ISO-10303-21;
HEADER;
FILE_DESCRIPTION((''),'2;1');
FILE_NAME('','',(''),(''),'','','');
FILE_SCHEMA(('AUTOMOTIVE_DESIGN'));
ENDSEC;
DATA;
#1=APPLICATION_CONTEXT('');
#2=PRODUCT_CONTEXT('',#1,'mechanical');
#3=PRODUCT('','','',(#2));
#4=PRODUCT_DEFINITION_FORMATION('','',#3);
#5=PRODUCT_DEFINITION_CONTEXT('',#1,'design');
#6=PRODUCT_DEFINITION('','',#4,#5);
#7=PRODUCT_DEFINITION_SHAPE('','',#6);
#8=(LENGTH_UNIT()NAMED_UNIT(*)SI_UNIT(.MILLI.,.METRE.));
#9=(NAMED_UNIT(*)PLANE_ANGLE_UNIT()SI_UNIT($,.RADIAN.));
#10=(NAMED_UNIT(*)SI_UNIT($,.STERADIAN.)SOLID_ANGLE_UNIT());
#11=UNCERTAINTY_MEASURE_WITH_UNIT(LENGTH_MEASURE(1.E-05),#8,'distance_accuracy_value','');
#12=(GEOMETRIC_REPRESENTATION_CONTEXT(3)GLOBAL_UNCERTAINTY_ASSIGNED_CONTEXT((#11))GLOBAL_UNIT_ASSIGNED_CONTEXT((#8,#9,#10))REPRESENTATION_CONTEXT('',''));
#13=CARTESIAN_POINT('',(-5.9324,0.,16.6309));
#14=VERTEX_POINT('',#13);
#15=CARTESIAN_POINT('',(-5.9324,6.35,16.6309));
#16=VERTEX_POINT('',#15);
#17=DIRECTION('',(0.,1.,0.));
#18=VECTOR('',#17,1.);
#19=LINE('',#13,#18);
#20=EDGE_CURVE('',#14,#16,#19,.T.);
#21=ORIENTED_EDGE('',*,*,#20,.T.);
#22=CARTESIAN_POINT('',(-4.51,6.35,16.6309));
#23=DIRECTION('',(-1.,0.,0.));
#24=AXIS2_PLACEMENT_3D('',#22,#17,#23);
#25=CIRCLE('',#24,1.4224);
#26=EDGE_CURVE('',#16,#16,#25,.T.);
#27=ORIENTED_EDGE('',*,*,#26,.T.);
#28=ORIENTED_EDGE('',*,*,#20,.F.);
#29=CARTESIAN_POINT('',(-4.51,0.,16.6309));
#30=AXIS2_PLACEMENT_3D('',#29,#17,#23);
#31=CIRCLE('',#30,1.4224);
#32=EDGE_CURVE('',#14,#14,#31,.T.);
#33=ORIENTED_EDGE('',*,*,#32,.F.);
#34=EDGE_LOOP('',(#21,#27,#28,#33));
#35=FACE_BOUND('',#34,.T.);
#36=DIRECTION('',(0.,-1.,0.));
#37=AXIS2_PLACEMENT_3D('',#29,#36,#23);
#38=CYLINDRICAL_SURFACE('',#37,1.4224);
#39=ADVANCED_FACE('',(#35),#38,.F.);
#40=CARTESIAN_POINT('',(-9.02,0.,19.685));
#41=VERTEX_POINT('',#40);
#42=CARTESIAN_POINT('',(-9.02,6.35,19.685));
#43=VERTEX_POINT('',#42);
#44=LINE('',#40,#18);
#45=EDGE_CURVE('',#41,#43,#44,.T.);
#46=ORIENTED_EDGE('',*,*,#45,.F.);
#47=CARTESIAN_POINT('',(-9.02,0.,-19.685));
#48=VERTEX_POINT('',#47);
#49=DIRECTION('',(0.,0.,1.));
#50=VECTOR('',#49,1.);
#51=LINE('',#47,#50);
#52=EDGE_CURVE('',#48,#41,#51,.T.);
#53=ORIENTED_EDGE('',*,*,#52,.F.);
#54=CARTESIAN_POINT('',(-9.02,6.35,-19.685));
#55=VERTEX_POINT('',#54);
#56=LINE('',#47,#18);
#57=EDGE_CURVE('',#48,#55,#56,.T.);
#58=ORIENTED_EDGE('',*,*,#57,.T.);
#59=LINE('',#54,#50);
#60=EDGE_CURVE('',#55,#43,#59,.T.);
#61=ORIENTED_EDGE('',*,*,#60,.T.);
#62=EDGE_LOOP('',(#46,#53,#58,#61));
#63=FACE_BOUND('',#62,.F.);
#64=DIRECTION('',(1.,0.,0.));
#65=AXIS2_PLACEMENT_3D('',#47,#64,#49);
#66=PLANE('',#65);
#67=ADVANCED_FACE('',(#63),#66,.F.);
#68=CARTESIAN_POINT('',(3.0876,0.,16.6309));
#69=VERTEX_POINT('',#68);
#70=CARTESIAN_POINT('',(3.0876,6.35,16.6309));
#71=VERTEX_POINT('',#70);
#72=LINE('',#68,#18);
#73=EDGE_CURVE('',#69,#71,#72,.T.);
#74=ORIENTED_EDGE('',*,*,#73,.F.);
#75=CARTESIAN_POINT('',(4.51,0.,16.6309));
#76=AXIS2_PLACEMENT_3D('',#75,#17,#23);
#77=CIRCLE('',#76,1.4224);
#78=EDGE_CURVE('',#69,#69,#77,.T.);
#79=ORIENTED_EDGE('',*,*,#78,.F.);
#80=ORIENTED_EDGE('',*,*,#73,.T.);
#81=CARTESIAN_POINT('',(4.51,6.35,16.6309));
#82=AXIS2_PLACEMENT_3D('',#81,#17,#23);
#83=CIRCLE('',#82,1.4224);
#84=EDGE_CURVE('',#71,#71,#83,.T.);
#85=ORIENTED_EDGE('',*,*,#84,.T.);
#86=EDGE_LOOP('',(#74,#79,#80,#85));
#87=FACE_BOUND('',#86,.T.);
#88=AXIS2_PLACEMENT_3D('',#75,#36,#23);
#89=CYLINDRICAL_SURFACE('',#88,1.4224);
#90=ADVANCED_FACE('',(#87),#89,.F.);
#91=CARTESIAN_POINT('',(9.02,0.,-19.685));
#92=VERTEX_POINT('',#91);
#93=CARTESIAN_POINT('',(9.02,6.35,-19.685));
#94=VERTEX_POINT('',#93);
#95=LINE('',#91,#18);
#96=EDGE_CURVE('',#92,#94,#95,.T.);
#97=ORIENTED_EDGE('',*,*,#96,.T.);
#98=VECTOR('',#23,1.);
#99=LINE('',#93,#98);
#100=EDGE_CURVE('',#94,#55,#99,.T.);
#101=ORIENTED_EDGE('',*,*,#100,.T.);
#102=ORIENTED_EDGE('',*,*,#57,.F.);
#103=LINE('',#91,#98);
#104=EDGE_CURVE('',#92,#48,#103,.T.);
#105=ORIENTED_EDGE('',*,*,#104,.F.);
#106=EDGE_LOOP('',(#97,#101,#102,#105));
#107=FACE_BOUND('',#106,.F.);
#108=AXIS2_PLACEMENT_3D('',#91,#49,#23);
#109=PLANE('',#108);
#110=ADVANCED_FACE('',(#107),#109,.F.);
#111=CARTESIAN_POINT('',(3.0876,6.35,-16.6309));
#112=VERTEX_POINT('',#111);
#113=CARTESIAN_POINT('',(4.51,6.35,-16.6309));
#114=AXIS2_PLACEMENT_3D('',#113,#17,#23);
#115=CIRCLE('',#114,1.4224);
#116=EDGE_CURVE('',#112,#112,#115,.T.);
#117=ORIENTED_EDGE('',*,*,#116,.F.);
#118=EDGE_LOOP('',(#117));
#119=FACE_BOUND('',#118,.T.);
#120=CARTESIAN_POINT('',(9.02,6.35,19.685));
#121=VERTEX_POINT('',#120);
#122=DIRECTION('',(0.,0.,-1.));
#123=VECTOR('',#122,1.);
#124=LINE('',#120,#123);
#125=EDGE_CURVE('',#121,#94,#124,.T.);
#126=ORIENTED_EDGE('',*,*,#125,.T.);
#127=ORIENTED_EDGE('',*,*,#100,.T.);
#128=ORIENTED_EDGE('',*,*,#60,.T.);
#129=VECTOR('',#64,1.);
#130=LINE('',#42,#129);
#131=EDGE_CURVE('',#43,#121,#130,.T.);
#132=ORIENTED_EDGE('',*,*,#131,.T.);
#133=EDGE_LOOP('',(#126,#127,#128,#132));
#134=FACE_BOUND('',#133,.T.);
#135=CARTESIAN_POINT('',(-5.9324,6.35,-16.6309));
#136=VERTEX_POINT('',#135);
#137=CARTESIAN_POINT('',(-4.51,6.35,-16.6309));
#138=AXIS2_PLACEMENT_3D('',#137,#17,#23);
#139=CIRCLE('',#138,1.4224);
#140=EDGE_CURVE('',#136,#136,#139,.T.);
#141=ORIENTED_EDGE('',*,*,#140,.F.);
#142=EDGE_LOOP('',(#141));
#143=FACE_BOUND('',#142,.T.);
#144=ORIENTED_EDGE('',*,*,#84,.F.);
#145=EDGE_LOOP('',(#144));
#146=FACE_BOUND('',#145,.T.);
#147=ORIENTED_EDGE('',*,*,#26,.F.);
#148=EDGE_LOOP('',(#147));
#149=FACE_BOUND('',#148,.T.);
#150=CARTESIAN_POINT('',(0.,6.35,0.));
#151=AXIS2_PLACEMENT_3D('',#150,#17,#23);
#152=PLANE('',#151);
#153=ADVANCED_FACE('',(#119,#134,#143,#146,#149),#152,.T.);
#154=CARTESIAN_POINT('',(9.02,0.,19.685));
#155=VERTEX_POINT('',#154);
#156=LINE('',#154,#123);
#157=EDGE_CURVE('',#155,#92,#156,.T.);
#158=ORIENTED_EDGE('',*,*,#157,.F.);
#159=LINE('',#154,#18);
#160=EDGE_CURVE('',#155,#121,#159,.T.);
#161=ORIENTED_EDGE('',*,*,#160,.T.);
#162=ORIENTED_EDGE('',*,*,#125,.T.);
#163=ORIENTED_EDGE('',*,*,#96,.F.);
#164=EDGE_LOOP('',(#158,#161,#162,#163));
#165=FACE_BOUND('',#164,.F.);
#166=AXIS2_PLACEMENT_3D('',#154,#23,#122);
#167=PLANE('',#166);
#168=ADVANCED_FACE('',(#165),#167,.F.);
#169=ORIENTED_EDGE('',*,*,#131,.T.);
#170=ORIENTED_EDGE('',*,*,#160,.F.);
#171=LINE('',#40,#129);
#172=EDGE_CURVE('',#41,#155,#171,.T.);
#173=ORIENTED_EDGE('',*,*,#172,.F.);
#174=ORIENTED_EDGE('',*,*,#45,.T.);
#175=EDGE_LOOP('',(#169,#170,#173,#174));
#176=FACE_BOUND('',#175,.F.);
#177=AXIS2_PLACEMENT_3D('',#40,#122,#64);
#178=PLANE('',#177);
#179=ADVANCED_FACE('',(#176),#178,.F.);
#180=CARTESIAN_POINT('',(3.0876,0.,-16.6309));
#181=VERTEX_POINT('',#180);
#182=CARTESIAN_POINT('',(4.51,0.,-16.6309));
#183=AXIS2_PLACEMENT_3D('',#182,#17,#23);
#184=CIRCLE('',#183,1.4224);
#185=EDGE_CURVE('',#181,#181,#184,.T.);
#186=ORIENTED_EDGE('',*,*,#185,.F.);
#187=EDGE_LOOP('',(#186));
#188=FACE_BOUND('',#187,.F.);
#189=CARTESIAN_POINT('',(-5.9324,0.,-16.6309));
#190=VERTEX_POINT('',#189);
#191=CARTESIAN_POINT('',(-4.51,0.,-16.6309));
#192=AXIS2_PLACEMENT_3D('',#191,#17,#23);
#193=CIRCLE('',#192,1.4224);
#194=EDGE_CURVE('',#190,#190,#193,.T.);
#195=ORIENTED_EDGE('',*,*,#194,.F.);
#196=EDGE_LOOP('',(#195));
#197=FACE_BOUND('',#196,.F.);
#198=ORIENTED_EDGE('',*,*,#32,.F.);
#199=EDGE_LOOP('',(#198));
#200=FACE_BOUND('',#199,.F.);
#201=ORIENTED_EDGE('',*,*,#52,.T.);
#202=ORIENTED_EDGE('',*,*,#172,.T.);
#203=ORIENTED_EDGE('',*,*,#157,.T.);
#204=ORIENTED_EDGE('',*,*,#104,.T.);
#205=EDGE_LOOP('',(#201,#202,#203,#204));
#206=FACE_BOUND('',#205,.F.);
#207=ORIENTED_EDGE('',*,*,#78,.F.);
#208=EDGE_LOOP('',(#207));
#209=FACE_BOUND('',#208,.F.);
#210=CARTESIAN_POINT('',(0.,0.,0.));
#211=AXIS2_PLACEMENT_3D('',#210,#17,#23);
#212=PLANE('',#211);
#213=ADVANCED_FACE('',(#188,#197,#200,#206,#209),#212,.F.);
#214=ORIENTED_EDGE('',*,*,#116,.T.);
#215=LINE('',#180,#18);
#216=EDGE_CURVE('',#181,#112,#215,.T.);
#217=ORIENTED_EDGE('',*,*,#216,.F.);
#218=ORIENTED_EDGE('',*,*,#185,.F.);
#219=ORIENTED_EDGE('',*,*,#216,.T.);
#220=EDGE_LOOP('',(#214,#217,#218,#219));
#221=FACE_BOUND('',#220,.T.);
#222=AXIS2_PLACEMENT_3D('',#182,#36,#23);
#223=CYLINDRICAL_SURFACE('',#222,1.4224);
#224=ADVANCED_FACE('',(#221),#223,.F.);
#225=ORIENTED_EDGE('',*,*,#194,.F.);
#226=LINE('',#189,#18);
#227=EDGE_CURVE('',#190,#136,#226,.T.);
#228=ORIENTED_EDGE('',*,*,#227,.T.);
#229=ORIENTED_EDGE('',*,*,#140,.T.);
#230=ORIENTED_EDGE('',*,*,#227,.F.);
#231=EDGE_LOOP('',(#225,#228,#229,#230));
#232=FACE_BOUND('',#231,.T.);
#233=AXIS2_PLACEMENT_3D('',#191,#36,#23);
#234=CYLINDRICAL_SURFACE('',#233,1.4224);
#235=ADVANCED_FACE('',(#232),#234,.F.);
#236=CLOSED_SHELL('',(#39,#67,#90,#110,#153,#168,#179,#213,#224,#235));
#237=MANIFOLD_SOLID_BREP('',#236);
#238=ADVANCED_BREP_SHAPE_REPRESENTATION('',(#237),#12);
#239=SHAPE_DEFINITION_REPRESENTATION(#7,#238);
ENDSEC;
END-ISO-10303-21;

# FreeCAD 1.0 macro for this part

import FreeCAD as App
import Part
import Sketcher

V = App.Vector
Q = App.Units.Quantity

doc = App.newDocument("Part")
params = doc.addObject("Spreadsheet::Sheet", "Params")
for row, (alias, value) in enumerate([
    ("sketch1_diameter", "0.112 in"),
    ("sketch1_height", "1.55 in"),
    ("pad1_length", "0.25 in"),
], start=1):
    params.set(f"A{row}", alias)
    params.set(f"B{row}", "=" + value)
    params.setAlias(f"B{row}", alias)

body = doc.addObject("PartDesign::Body", "Body")

# Sketch on XZ plane
sketch1 = doc.addObject("Sketcher::SketchObject", "Sketch")
body.addObject(sketch1)
sketch1.AttachmentSupport = (doc.XZ_Plane, [""])
sketch1.MapMode = "FlatFace"
sketch1.addGeometry(Part.LineSegment(V(-9, -19.7, 0), V(-9, 19.7, 0)), False)
sketch1.addGeometry(Part.LineSegment(V(-9, 19.7, 0), V(9, 19.7, 0)), False)
sketch1.addGeometry(Part.LineSegment(V(9, 19.7, 0), V(9, -19.7, 0)), False)
sketch1.addGeometry(Part.LineSegment(V(9, -19.7, 0), V(-9, -19.7, 0)), False)
sketch1.addGeometry(Part.Circle(V(4.5, -16.6, 0), V(0, 0, 1), 1.4), False)
sketch1.addGeometry(Part.Circle(V(-4.5, -16.6, 0), V(0, 0, 1), 1.4), False)
sketch1.addGeometry(Part.Circle(V(4.5, 16.6, 0), V(0, 0, 1), 1.4), False)
sketch1.addGeometry(Part.Circle(V(-4.5, 16.6, 0), V(0, 0, 1), 1.4), False)
sketch1.addConstraint(Sketcher.Constraint("Coincident", 0, 2, 1, 1))
sketch1.addConstraint(Sketcher.Constraint("Coincident", 1, 2, 2, 1))
sketch1.addConstraint(Sketcher.Constraint("Coincident", 2, 2, 3, 1))
sketch1.addConstraint(Sketcher.Constraint("Coincident", 3, 2, 0, 1))
sketch1.addConstraint(Sketcher.Constraint("Vertical", 0))
sketch1.addConstraint(Sketcher.Constraint("Horizontal", 1))
sketch1.addConstraint(Sketcher.Constraint("Vertical", 2))
sketch1.addConstraint(Sketcher.Constraint("Horizontal", 3))
sketch1.addConstraint(Sketcher.Constraint("Equal", 4, 5))
sketch1.addConstraint(Sketcher.Constraint("Equal", 5, 6))
sketch1.addConstraint(Sketcher.Constraint("Equal", 6, 7))
sketch1.addConstraint(Sketcher.Constraint("Symmetric", 5, 3, 6, 3, -1, 1))
sketch1.addConstraint(Sketcher.Constraint("Symmetric", 4, 3, 7, 3, -1, 1))
sketch1.addConstraint(Sketcher.Constraint("Symmetric", 0, 2, 2, 2, -1, 1))
sketch1.addConstraint(Sketcher.Constraint("Symmetric", 4, 3, 5, 3, -2))
sketch1.addConstraint(Sketcher.Constraint("Diameter", 4, Q("0.112 in")))
sketch1.addConstraint(Sketcher.Constraint("DistanceY", 0, 1, 0, 2, Q("1.55 in")))
sketch1.addConstraint(Sketcher.Constraint("DistanceX", 1, 1, 1, 2, 18.04))
sketch1.addConstraint(Sketcher.Constraint("DistanceX", -1, 1, 4, 3, 4.51))
sketch1.addConstraint(Sketcher.Constraint("DistanceY", 7, 3, 0, 2, 3.054))
sketch1.setExpression("Constraints[15]", "Params.sketch1_diameter")
sketch1.setExpression("Constraints[16]", "Params.sketch1_height")
pad1 = doc.addObject("PartDesign::Pad", "Pad")
body.addObject(pad1)
pad1.Profile = sketch1
pad1.setExpression("Length", "Params.pad1_length")
pad1.Reversed = True

doc.recompute()
